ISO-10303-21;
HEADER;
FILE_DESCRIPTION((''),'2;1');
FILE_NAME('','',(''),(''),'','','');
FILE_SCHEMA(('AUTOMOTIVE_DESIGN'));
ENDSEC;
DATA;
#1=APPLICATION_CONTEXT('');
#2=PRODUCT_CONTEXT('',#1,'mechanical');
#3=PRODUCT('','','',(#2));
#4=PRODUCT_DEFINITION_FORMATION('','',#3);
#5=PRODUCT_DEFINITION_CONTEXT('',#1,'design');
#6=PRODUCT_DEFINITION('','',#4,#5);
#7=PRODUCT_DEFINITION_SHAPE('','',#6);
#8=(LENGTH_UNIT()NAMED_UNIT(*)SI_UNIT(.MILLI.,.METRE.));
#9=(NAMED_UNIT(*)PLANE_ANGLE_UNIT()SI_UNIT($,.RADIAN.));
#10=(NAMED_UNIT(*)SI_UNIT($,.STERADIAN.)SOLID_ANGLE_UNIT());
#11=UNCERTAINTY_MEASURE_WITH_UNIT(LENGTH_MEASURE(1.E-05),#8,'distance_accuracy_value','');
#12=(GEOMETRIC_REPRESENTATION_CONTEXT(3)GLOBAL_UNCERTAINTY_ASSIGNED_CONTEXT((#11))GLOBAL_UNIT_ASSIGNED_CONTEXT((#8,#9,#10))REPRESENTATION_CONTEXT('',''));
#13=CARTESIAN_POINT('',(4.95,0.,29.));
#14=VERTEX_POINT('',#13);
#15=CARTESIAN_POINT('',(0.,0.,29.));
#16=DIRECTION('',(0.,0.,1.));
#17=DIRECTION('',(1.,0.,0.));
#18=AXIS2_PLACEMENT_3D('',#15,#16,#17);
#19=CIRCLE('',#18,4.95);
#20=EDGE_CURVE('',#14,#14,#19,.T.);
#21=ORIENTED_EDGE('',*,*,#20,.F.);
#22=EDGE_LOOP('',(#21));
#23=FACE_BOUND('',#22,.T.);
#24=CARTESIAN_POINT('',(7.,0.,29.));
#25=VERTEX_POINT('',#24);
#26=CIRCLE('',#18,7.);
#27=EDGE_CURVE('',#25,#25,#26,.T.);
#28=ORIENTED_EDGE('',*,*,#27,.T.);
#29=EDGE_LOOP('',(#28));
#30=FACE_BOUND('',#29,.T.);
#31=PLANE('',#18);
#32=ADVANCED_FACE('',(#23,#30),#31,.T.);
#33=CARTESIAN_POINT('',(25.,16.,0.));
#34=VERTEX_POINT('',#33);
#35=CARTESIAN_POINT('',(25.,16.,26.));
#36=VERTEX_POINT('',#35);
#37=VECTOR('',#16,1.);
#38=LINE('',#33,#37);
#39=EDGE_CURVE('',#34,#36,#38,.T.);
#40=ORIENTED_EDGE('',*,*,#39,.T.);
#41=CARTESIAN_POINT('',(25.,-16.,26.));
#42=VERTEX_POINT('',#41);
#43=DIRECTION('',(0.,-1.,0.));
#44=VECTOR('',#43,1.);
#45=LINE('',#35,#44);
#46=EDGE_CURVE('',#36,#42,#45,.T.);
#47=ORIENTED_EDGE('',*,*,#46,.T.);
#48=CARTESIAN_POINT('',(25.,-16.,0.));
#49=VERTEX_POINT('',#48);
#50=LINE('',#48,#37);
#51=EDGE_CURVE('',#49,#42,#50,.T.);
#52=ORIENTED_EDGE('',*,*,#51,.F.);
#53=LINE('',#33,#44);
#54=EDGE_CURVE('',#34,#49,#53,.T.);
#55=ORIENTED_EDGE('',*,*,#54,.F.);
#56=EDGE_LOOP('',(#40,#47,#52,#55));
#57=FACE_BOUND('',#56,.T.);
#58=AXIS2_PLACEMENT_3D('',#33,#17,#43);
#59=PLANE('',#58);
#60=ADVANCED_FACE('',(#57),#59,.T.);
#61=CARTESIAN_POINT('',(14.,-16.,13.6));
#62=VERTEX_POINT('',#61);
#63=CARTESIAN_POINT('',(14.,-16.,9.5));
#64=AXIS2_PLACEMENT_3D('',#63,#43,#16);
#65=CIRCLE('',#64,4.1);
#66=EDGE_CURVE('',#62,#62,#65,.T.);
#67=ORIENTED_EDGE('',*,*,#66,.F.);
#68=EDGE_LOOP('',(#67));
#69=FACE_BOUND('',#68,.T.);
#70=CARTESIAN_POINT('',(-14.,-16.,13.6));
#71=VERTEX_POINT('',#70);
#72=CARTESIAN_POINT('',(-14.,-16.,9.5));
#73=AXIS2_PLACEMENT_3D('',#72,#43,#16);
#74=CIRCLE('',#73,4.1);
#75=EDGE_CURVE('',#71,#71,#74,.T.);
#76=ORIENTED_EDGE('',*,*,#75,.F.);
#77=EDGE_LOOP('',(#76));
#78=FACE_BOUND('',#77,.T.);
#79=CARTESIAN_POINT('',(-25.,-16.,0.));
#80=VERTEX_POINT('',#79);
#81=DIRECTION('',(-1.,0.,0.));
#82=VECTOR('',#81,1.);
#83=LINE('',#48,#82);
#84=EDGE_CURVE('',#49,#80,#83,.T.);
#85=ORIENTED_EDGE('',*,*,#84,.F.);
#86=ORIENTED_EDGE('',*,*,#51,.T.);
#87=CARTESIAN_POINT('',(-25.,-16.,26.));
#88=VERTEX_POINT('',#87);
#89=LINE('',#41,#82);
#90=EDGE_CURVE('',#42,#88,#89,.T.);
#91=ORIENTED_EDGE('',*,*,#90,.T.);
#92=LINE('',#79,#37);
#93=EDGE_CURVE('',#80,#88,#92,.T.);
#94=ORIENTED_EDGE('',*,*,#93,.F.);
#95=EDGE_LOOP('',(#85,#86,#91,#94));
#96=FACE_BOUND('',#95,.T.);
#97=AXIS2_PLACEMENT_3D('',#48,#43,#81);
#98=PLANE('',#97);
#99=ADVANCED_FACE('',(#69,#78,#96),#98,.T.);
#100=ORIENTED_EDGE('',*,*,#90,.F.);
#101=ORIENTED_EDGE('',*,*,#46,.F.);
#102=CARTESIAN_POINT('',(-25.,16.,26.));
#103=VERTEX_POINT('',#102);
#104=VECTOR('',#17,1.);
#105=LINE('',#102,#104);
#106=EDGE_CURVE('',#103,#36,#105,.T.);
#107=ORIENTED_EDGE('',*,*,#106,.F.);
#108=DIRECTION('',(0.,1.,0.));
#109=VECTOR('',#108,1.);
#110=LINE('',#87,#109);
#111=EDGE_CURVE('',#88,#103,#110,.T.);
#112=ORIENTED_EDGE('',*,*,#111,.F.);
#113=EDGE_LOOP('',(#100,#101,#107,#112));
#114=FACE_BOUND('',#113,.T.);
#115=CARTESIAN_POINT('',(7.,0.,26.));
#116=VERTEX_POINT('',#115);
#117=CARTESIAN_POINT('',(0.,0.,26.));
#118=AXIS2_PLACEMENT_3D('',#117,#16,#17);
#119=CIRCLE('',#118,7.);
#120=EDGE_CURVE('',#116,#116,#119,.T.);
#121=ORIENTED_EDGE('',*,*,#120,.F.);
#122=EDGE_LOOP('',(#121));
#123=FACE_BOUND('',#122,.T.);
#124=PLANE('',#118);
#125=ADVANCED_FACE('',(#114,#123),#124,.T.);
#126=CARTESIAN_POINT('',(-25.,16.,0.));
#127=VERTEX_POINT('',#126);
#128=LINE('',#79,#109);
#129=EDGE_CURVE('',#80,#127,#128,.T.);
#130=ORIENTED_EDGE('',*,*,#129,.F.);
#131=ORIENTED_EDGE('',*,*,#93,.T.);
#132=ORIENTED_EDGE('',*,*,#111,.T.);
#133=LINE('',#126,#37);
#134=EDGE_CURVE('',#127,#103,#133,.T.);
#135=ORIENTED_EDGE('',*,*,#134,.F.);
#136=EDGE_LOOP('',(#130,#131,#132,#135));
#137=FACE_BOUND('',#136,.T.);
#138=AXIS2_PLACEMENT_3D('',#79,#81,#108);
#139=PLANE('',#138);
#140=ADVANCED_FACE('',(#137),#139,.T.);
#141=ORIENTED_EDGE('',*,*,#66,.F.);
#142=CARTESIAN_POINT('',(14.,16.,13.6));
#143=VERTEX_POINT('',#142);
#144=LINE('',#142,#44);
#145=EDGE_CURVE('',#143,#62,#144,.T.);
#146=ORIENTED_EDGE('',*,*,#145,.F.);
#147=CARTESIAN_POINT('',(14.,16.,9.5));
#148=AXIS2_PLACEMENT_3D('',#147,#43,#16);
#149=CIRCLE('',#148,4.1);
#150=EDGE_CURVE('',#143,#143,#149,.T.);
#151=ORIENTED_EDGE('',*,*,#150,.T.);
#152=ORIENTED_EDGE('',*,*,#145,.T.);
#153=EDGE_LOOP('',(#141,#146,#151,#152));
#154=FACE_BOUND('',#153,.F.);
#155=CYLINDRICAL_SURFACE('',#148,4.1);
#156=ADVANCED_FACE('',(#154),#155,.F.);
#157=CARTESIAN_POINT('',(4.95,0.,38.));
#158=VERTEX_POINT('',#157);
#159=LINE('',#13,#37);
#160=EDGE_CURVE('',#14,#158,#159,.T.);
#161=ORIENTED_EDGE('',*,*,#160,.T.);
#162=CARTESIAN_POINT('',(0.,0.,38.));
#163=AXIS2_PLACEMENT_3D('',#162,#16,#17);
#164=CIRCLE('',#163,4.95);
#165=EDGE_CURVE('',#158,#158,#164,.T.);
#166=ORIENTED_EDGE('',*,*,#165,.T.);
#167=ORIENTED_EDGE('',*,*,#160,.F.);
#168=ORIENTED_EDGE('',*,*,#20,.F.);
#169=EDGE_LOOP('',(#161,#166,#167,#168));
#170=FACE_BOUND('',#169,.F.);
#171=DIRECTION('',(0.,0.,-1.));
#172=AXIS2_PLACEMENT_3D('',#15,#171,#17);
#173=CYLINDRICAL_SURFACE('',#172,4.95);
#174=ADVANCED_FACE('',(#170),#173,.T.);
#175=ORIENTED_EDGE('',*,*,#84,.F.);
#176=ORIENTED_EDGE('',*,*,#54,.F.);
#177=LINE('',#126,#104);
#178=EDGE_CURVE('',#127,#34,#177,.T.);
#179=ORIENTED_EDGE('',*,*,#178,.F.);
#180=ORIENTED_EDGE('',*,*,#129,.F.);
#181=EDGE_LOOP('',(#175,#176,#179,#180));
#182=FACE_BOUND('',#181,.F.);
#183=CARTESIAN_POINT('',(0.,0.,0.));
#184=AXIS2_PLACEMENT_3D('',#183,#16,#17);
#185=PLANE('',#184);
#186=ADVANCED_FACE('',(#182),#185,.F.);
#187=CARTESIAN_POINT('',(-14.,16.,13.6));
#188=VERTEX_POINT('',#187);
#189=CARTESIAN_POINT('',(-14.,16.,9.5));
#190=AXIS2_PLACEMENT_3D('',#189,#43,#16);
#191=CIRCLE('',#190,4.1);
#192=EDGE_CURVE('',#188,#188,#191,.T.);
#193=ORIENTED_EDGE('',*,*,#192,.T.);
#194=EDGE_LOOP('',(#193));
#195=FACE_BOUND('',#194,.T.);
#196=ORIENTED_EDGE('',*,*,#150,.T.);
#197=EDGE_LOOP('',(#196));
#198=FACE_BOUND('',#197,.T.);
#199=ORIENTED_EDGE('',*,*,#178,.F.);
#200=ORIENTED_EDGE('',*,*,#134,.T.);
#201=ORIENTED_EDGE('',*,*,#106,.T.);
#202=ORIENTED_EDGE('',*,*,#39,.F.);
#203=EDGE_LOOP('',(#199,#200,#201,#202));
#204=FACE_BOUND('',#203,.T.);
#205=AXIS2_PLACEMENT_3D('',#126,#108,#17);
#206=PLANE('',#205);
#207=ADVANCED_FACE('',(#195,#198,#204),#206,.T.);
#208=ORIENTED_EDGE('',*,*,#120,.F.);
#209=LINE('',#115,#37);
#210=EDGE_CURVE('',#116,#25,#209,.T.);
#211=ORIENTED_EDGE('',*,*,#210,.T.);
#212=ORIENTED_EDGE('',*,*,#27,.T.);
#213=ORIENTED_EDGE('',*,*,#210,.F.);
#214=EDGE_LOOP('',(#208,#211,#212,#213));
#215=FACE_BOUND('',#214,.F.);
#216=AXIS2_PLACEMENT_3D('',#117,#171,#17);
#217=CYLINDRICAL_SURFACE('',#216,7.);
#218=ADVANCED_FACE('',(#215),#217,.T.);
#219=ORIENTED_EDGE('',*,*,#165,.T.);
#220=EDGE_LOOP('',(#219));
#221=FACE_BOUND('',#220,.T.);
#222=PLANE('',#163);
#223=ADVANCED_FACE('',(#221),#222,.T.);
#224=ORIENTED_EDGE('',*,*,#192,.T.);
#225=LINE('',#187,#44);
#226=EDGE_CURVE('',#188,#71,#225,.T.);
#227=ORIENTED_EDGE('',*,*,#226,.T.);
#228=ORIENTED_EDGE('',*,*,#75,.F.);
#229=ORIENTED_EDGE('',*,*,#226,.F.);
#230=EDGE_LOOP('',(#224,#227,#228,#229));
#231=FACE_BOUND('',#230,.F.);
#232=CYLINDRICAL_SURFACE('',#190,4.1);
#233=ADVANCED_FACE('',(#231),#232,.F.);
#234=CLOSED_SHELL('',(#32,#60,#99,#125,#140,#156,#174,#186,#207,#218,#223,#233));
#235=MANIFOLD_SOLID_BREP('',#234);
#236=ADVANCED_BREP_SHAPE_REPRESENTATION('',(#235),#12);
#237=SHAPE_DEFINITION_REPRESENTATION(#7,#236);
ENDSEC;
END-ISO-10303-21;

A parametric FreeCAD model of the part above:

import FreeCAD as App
import Part
import Sketcher

V = App.Vector


def add_polygon(sketch, points):
    """Adds a closed chain of lines whose ends are joined by coincident constraints."""
    first, n = sketch.GeometryCount, len(points)
    for a, b in zip(points, points[1:] + points[:1]):
        sketch.addGeometry(Part.LineSegment(App.Vector(*a, 0), App.Vector(*b, 0)), False)
    for i in range(n):
        sketch.addConstraint(Sketcher.Constraint("Coincident", first + i, 2, first + (i + 1) % n, 1))

doc = App.newDocument("Part")
params = doc.addObject("Spreadsheet::Sheet", "Params")
for row, (alias, value) in enumerate([
    ("sketch1_width", "50 mm"),
    ("sketch1_height", "32 mm"),
    ("pad1_length", "26 mm"),
    ("sketch2_diameter", "14 mm"),
    ("pad2_length", "3 mm"),
    ("sketch3_diameter", "9.9 mm"),
    ("pad3_length", "9 mm"),
    ("sketch4_diameter", "8.2 mm"),
    ("hole_diameter", "8.2 mm"),
], start=1):
    params.set(f"A{row}", alias)
    params.set(f"B{row}", "=" + value)
    params.setAlias(f"B{row}", alias)

body = doc.addObject("PartDesign::Body", "Body")

sketch1 = body.newObject("Sketcher::SketchObject", "Sketch")
sketch1.AttachmentSupport = (doc.getObject("XY_Plane"), [""])
sketch1.MapMode = "FlatFace"
add_polygon(sketch1, [(25, 16), (-25, 16), (-25, -16), (25, -16)])
sketch1.addConstraint(Sketcher.Constraint("Horizontal", 0))
sketch1.addConstraint(Sketcher.Constraint("Vertical", 1))
sketch1.addConstraint(Sketcher.Constraint("Horizontal", 2))
sketch1.addConstraint(Sketcher.Constraint("Vertical", 3))
sketch1.addConstraint(Sketcher.Constraint("Symmetric", 0, 2, 2, 2, -1, 1))
sketch1.addConstraint(Sketcher.Constraint("DistanceX", 0, 2, 0, 1, 50.0))
sketch1.addConstraint(Sketcher.Constraint("DistanceY", 1, 2, 1, 1, 32.0))
sketch1.setExpression("Constraints[9]", "Params.sketch1_width")
sketch1.setExpression("Constraints[10]", "Params.sketch1_height")
pad1 = body.newObject("PartDesign::Pad", "Pad")
pad1.Profile = sketch1
pad1.setExpression("Length", "Params.pad1_length")

sketch2 = body.newObject("Sketcher::SketchObject", "Sketch001")
sketch2.AttachmentSupport = (doc.getObject("XY_Plane"), [""])
sketch2.MapMode = "FlatFace"
sketch2.AttachmentOffset = App.Placement(V(0, 0, 26), App.Rotation())
sketch2.addGeometry(Part.Circle(V(0, 0, 0), V(0, 0, 1), 7), False)
sketch2.addConstraint(Sketcher.Constraint("Coincident", 0, 3, -1, 1))
sketch2.addConstraint(Sketcher.Constraint("Diameter", 0, 14.0))
sketch2.setExpression("Constraints[1]", "Params.sketch2_diameter")
pad2 = body.newObject("PartDesign::Pad", "Pad001")
pad2.Profile = sketch2
pad2.setExpression("Length", "Params.pad2_length")

sketch3 = body.newObject("Sketcher::SketchObject", "Sketch002")
sketch3.AttachmentSupport = (doc.getObject("XY_Plane"), [""])
sketch3.MapMode = "FlatFace"
sketch3.AttachmentOffset = App.Placement(V(0, 0, 29), App.Rotation())
sketch3.addGeometry(Part.Circle(V(0, 0, 0), V(0, 0, 1), 4.95), False)
sketch3.addConstraint(Sketcher.Constraint("Coincident", 0, 3, -1, 1))
sketch3.addConstraint(Sketcher.Constraint("Diameter", 0, 9.9))
sketch3.setExpression("Constraints[1]", "Params.sketch3_diameter")
pad3 = body.newObject("PartDesign::Pad", "Pad002")
pad3.Profile = sketch3
pad3.setExpression("Length", "Params.pad3_length")

sketch4 = body.newObject("Sketcher::SketchObject", "Sketch003")
sketch4.AttachmentSupport = (doc.getObject("XZ_Plane"), [""])
sketch4.MapMode = "FlatFace"
sketch4.AttachmentOffset = App.Placement(V(0, 0, -16), App.Rotation())
sketch4.addGeometry(Part.Circle(V(-14, 9.5, 0), V(0, 0, 1), 4.1), False)
sketch4.addGeometry(Part.Circle(V(14, 9.5, 0), V(0, 0, 1), 4.1), False)
sketch4.addConstraint(Sketcher.Constraint("Equal", 0, 1))
sketch4.addConstraint(Sketcher.Constraint("Symmetric", 0, 3, 1, 3, -2))
sketch4.addConstraint(Sketcher.Constraint("Diameter", 0, 8.2))
sketch4.addConstraint(Sketcher.Constraint("DistanceX", 0, 3, -1, 1, 14.0))
sketch4.addConstraint(Sketcher.Constraint("DistanceY", -1, 1, 0, 3, 9.5))
sketch4.setExpression("Constraints[2]", "Params.sketch4_diameter")
doc.recompute()
hole = body.newObject("PartDesign::Hole", "Hole")
hole.Profile = sketch4
hole.ThreadType = "None"
hole.setExpression("Diameter", "Params.hole_diameter")
hole.DepthType = "ThroughAll"
hole.Reversed = True

doc.recompute()
